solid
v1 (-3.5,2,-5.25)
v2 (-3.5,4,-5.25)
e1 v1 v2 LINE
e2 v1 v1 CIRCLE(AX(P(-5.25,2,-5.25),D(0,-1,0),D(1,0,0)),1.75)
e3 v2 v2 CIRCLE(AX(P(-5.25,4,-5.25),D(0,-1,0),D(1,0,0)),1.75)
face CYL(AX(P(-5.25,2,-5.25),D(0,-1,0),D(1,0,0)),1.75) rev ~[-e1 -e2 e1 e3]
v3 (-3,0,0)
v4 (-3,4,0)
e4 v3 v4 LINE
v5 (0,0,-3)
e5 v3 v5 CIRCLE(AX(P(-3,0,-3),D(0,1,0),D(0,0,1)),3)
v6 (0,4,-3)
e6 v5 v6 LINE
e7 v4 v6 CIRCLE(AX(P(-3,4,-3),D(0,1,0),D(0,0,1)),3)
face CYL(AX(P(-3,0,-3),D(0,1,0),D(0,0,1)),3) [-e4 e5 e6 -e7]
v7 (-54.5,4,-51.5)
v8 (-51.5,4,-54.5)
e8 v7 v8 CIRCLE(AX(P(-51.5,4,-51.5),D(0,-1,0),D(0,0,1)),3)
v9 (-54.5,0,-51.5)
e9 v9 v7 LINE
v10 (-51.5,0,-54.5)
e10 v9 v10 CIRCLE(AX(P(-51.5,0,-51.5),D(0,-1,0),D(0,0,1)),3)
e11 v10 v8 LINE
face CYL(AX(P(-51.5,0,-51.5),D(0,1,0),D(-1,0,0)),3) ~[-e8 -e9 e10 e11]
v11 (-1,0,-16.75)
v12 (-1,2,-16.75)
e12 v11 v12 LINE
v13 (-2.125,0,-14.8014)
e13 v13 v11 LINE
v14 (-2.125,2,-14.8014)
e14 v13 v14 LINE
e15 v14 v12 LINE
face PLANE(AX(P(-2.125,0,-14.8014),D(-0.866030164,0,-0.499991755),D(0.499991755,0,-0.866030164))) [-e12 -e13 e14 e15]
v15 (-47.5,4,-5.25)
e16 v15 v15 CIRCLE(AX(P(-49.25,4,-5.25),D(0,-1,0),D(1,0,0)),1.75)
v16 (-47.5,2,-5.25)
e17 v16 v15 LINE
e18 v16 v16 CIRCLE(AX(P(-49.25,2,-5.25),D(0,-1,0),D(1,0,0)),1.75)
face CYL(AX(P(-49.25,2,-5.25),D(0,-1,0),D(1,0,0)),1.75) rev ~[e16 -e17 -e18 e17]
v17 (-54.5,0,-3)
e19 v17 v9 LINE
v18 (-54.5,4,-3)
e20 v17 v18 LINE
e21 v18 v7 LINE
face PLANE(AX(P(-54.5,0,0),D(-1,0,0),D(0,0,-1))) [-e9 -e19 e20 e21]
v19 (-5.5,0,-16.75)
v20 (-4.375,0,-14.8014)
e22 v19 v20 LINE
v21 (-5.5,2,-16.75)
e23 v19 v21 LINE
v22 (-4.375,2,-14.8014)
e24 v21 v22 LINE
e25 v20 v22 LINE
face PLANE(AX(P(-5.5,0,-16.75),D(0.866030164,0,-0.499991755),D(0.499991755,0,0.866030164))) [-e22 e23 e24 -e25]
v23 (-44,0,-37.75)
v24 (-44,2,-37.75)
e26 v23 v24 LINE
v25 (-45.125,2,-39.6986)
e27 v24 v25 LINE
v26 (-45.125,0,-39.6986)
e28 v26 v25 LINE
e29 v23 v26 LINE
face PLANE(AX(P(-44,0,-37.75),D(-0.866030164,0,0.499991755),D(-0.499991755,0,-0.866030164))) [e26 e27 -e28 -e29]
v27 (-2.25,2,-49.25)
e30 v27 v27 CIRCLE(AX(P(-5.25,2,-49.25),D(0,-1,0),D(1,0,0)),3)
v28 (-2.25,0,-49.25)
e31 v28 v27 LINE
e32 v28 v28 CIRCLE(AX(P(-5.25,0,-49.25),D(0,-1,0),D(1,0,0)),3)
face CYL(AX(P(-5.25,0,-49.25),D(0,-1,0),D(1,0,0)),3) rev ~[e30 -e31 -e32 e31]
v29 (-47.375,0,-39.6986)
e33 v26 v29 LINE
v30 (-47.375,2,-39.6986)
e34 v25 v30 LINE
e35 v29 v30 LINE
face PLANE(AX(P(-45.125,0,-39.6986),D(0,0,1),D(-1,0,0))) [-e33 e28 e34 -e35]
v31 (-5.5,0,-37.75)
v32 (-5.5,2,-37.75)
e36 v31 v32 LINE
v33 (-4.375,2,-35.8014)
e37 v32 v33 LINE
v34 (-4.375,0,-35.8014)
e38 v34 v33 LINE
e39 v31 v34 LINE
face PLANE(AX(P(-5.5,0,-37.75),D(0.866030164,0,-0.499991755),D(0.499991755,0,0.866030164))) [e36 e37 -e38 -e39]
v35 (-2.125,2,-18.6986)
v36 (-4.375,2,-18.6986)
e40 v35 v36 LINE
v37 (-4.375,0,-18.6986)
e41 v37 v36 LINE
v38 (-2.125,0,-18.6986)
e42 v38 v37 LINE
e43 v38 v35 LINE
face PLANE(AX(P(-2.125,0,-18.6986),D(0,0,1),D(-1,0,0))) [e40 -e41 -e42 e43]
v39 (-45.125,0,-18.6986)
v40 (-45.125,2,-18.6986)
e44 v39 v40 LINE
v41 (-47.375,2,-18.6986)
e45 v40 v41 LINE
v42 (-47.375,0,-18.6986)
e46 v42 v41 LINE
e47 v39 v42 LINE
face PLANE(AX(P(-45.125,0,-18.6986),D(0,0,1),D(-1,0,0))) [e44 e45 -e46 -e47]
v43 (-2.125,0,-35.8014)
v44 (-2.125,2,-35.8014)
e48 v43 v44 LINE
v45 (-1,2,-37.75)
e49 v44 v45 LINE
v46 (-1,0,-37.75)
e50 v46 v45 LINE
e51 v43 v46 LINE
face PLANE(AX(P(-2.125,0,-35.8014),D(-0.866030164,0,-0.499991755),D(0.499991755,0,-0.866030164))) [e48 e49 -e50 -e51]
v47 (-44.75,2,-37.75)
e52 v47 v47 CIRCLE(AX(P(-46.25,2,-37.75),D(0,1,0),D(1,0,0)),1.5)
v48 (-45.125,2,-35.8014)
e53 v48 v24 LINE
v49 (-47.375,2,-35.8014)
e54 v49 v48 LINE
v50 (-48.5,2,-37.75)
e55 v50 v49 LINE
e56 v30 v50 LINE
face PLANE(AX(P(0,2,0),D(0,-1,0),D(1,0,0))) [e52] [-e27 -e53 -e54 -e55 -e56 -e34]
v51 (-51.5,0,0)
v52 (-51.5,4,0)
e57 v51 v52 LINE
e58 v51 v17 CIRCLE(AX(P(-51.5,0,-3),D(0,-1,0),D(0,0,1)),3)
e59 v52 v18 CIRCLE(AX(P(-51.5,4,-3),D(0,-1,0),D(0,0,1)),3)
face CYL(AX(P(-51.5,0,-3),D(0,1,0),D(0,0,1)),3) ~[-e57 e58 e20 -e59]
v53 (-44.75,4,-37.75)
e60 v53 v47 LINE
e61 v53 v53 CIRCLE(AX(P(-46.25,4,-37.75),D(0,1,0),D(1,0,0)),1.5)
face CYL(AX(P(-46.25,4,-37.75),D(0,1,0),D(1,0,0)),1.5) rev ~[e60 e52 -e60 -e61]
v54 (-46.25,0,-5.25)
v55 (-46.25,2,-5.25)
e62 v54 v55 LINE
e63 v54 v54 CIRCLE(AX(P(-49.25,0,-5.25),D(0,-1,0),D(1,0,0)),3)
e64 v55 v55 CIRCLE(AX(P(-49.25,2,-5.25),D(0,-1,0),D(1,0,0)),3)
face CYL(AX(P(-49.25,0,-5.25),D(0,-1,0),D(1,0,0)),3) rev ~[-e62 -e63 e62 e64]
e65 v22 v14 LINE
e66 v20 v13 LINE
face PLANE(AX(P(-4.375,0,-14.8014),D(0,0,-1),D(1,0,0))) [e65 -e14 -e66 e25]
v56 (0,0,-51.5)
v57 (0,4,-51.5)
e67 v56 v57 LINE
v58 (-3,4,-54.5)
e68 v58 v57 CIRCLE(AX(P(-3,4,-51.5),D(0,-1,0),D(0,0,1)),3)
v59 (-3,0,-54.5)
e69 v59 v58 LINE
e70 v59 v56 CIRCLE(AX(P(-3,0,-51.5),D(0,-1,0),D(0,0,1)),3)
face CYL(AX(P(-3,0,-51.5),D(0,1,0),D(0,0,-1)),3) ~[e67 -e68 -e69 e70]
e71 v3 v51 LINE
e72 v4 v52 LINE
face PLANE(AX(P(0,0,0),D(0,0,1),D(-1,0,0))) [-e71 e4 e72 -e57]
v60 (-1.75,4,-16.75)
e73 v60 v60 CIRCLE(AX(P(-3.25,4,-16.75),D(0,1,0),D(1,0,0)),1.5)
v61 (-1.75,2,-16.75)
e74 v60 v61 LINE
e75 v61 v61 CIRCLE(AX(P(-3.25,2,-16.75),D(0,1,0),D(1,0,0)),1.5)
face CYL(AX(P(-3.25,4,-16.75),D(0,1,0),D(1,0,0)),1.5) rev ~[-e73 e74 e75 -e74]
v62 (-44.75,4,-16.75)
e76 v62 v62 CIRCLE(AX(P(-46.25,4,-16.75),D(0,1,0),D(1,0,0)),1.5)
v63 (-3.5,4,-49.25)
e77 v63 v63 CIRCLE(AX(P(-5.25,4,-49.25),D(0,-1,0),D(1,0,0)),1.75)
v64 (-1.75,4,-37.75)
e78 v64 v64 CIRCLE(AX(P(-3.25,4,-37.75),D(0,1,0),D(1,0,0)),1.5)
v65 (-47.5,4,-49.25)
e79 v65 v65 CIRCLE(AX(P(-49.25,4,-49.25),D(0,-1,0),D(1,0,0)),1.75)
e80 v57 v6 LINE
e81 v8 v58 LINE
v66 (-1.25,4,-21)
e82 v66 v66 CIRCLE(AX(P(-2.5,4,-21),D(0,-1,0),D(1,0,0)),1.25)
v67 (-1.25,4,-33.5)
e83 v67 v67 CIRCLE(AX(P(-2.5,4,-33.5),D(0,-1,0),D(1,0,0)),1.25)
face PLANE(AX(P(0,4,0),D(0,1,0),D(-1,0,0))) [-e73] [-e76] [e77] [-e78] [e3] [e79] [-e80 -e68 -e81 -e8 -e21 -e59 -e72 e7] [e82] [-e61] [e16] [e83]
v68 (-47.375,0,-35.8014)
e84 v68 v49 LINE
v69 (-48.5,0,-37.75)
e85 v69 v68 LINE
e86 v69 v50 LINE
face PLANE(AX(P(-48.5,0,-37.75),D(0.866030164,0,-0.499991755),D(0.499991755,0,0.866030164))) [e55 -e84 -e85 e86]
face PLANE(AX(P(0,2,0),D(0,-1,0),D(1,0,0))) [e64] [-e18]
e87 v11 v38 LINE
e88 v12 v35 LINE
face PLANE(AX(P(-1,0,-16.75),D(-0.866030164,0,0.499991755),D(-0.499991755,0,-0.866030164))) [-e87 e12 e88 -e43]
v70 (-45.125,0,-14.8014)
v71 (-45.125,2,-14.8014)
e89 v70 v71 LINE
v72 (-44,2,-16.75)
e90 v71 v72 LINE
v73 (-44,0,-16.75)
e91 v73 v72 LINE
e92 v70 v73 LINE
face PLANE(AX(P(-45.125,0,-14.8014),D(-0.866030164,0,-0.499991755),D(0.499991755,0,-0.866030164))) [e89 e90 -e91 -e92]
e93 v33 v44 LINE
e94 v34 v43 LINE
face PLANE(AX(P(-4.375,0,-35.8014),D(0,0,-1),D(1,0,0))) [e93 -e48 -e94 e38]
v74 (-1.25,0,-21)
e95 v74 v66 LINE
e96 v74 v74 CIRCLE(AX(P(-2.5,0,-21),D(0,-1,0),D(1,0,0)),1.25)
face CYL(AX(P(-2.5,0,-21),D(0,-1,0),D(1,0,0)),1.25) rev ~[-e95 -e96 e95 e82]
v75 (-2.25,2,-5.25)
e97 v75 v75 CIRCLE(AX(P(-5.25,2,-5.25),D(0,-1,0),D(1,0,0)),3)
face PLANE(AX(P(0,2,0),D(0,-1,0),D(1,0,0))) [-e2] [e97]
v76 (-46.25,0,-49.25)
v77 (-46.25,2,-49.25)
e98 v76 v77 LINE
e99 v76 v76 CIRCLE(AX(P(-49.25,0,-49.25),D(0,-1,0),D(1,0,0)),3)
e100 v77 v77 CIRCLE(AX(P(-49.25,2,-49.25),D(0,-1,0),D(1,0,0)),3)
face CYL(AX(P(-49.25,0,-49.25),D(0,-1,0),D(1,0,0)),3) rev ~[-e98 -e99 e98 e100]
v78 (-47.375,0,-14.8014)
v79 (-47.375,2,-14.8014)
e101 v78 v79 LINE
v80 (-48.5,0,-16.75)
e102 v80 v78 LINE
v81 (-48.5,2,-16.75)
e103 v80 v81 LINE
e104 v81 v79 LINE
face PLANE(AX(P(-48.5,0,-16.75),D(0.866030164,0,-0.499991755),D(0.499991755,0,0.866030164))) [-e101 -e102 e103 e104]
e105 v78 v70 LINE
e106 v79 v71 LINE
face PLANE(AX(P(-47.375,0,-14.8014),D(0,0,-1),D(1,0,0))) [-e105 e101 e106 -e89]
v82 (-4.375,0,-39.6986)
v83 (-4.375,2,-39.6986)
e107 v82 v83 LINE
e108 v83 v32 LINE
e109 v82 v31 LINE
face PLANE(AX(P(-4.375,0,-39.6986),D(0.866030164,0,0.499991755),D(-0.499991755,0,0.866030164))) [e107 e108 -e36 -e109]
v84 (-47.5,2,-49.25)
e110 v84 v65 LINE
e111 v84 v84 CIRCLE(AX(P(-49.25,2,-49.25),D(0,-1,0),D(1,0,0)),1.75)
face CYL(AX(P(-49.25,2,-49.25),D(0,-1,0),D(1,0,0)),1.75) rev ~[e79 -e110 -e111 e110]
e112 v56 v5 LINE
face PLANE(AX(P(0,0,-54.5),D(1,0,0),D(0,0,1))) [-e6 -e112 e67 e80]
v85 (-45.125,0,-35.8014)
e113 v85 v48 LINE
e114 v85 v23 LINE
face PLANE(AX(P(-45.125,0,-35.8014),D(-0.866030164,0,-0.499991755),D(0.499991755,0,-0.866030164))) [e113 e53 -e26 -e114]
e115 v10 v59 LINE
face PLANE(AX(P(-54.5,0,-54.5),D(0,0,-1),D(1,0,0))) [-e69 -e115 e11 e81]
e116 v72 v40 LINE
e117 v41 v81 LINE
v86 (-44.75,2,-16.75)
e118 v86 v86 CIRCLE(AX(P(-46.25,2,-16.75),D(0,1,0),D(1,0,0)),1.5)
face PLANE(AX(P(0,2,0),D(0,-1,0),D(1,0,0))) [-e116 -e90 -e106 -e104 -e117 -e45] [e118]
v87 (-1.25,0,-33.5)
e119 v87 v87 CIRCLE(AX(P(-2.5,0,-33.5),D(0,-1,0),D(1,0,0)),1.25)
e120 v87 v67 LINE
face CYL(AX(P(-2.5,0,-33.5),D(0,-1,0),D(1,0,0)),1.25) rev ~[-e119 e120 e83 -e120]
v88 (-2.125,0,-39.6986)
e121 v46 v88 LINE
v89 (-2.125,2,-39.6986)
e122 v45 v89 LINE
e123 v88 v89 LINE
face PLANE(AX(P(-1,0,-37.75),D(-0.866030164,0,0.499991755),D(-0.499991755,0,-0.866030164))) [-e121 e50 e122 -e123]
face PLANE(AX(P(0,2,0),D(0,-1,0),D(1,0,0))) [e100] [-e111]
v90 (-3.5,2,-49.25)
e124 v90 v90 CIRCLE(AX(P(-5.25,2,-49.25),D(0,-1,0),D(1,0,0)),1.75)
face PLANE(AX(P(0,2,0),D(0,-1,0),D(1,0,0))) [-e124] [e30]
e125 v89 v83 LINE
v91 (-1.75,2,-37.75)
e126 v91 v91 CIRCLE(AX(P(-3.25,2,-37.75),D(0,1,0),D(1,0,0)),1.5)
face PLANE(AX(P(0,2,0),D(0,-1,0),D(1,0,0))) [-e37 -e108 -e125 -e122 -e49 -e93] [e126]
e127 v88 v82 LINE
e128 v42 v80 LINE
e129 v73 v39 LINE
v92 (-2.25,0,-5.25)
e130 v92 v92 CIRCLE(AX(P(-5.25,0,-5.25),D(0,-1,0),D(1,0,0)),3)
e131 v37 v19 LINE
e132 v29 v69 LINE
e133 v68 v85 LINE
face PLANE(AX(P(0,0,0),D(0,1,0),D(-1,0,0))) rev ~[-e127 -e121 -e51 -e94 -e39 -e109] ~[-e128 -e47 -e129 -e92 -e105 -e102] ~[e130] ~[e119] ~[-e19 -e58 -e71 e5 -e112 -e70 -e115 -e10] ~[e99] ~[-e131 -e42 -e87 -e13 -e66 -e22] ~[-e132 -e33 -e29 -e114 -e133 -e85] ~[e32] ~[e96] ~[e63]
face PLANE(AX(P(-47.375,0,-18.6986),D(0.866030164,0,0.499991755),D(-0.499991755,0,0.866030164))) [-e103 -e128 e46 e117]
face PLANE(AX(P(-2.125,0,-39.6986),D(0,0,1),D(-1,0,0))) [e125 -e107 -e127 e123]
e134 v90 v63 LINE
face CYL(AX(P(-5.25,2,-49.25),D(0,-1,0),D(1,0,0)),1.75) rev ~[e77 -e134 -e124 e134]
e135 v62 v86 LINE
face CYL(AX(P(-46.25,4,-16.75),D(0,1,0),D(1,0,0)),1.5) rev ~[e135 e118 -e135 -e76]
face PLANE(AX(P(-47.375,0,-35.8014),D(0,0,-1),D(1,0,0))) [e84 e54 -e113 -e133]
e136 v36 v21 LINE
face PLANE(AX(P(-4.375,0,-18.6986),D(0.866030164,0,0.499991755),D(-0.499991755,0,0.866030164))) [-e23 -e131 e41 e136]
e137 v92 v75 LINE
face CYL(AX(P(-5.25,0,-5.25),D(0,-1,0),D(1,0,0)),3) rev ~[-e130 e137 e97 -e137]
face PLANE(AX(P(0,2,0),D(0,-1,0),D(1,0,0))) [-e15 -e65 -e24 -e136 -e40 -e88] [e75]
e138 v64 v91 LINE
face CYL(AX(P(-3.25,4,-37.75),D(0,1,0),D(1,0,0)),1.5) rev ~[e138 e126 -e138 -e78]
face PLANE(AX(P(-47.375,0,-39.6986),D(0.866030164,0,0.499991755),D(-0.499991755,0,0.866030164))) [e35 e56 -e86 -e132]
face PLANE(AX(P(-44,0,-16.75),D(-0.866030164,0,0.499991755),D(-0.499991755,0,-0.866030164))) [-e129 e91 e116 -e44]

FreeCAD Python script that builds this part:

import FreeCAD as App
import Part
import Sketcher

V = App.Vector
Q = App.Units.Quantity


def edges_at(feature, points):
    """Names of the edges that pass closest to the given points."""
    edges = feature.Shape.Edges
    near = lambda p: min(range(len(edges)), key=lambda i: edges[i].distToShape(Part.Vertex(*p))[0])
    return sorted({f"Edge{near(p) + 1}" for p in points})


def add_polygon(sketch, points):
    """Adds a closed chain of lines whose ends are joined by coincident constraints."""
    first, n = sketch.GeometryCount, len(points)
    for a, b in zip(points, points[1:] + points[:1]):
        sketch.addGeometry(Part.LineSegment(App.Vector(*a, 0), App.Vector(*b, 0)), False)
    for i in range(n):
        sketch.addConstraint(Sketcher.Constraint("Coincident", first + i, 2, first + (i + 1) % n, 1))

doc = App.newDocument("Part")
params = doc.addObject("Spreadsheet::Sheet", "Params")
for row, (alias, value) in enumerate([
    ("sketch1_width", "54.5 mm"),
    ("pad1_length", "4 mm"),
    ("fillet_radius", "3 mm"),
    ("sketch2_diameter", "6 mm"),
    ("pocket1_length", "2 mm"),
    ("sketch3_diameter", "3.5 mm"),
    ("pocket2_length", "2 mm"),
    ("sketch4_diameter", "3 mm"),
    ("pocket3_length", "4 mm"),
    ("sketch5_width", "2.25 mm"),
    ("pocket4_length", "2 mm"),
    ("sketch6_diameter", "2.5 mm"),
    ("pocket5_length", "4 mm"),
], start=1):
    params.set(f"A{row}", alias)
    params.set(f"B{row}", "=" + value)
    params.setAlias(f"B{row}", alias)

body = doc.addObject("PartDesign::Body", "Body")

# Sketch on XZ plane
sketch1 = doc.addObject("Sketcher::SketchObject", "Sketch")
body.addObject(sketch1)
sketch1.AttachmentSupport = (doc.XZ_Plane, [""])
sketch1.MapMode = "FlatFace"
add_polygon(sketch1, [(-54, 0), (0, 0), (0, -54), (-54, -54)])  # lines 0-3
sketch1.addConstraint([
    Sketcher.Constraint("Horizontal", 0),
    Sketcher.Constraint("Vertical", 1),
    Sketcher.Constraint("Horizontal", 2),
    Sketcher.Constraint("Vertical", 3),
    Sketcher.Constraint("Coincident", 0, 2, -1, 1),
    Sketcher.Constraint("Equal", 2, 1),
    Sketcher.Constraint("DistanceX", 0, 1, 0, 2, Q("54.5 mm")),
])
sketch1.setExpression("Constraints[10]", "Params.sketch1_width")
pad1 = doc.addObject("PartDesign::Pad", "Pad")
body.addObject(pad1)
pad1.Profile = sketch1
pad1.setExpression("Length", "Params.pad1_length")
pad1.Reversed = True
doc.recompute()

fillet = doc.addObject("PartDesign::Fillet", "Fillet")
body.addObject(fillet)
fillet.Base = (pad1, edges_at(pad1, [
    (0, 2, 0),
    (0, 2, -54.5),
    (-54.5, 2, -54.5),
    (-54.5, 2, 0),
]))
fillet.setExpression("Radius", "Params.fillet_radius")

# Sketch on XZ plane
sketch2 = doc.addObject("Sketcher::SketchObject", "Sketch001")
body.addObject(sketch2)
sketch2.AttachmentSupport = (doc.XZ_Plane, [""])
sketch2.MapMode = "FlatFace"
sketch2.addGeometry([
    Part.Circle(V(-49.2, -49.2, 0), V(0, 0, 1), 3),
    Part.Circle(V(-49.2, -5.2, 0), V(0, 0, 1), 3),
    Part.Circle(V(-5.2, -49.2, 0), V(0, 0, 1), 3),
    Part.Circle(V(-5.2, -5.2, 0), V(0, 0, 1), 3),
], False)
sketch2.addConstraint([
    Sketcher.Constraint("Equal", 0, 1),
    Sketcher.Constraint("Equal", 1, 2),
    Sketcher.Constraint("Equal", 2, 3),
    Sketcher.Constraint("Horizontal", 0, 3, 2, 3),
    Sketcher.Constraint("Horizontal", 1, 3, 3, 3),
    Sketcher.Constraint("Vertical", 0, 3, 1, 3),
    Sketcher.Constraint("Vertical", 2, 3, 3, 3),
    Sketcher.Constraint("Diameter", 0, Q("6 mm")),
    Sketcher.Constraint("DistanceY", 0, 3, 1, 3, Q("44 mm")),
    Sketcher.Constraint("DistanceX", 0, 3, 2, 3, Q("44 mm")),
    Sketcher.Constraint("DistanceX", 0, 3, -1, 1, Q("49.25 mm")),
    Sketcher.Constraint("DistanceY", 0, 3, -1, 1, Q("49.25 mm")),
])
sketch2.setExpression("Constraints[7]", "Params.sketch2_diameter")
pocket1 = doc.addObject("PartDesign::Pocket", "Pocket")
body.addObject(pocket1)
pocket1.Profile = sketch2
pocket1.setExpression("Length", "Params.pocket1_length")

# Sketch on XZ plane
sketch3 = doc.addObject("Sketcher::SketchObject", "Sketch002")
body.addObject(sketch3)
sketch3.AttachmentSupport = (doc.XZ_Plane, [""])
sketch3.MapMode = "FlatFace"
sketch3.AttachmentOffset = App.Placement(V(0, 0, -2), App.Rotation())
sketch3.addGeometry([
    Part.Circle(V(-49.2, -49.2, 0), V(0, 0, 1), 1.8),
    Part.Circle(V(-49.2, -5.2, 0), V(0, 0, 1), 1.8),
    Part.Circle(V(-5.2, -49.2, 0), V(0, 0, 1), 1.8),
    Part.Circle(V(-5.2, -5.2, 0), V(0, 0, 1), 1.8),
], False)
sketch3.addConstraint([
    Sketcher.Constraint("Equal", 0, 1),
    Sketcher.Constraint("Equal", 1, 2),
    Sketcher.Constraint("Equal", 2, 3),
    Sketcher.Constraint("Horizontal", 0, 3, 2, 3),
    Sketcher.Constraint("Horizontal", 1, 3, 3, 3),
    Sketcher.Constraint("Vertical", 0, 3, 1, 3),
    Sketcher.Constraint("Vertical", 2, 3, 3, 3),
    Sketcher.Constraint("Diameter", 0, Q("3.5 mm")),
    Sketcher.Constraint("DistanceY", 0, 3, 1, 3, Q("44 mm")),
    Sketcher.Constraint("DistanceX", 0, 3, 2, 3, Q("44 mm")),
    Sketcher.Constraint("DistanceX", 0, 3, -1, 1, Q("49.25 mm")),
    Sketcher.Constraint("DistanceY", 0, 3, -1, 1, Q("49.25 mm")),
])
sketch3.setExpression("Constraints[7]", "Params.sketch3_diameter")
pocket2 = doc.addObject("PartDesign::Pocket", "Pocket001")
body.addObject(pocket2)
pocket2.Profile = sketch3
pocket2.setExpression("Length", "Params.pocket2_length")

# Sketch on XZ plane
sketch4 = doc.addObject("Sketcher::SketchObject", "Sketch003")
body.addObject(sketch4)
sketch4.AttachmentSupport = (doc.XZ_Plane, [""])
sketch4.MapMode = "FlatFace"
sketch4.AttachmentOffset = App.Placement(V(0, 0, -4), App.Rotation())
sketch4.addGeometry([
    Part.Circle(V(-46.2, -16.8, 0), V(0, 0, 1), 1.5),
    Part.Circle(V(-46.2, -37.8, 0), V(0, 0, 1), 1.5),
    Part.Circle(V(-3.2, -37.8, 0), V(0, 0, 1), 1.5),
    Part.Circle(V(-3.2, -16.8, 0), V(0, 0, 1), 1.5),
], False)
sketch4.addConstraint([
    Sketcher.Constraint("Equal", 0, 1),
    Sketcher.Constraint("Equal", 1, 2),
    Sketcher.Constraint("Equal", 2, 3),
    Sketcher.Constraint("Horizontal", 1, 3, 2, 3),
    Sketcher.Constraint("Horizontal", 0, 3, 3, 3),
    Sketcher.Constraint("Vertical", 0, 3, 1, 3),
    Sketcher.Constraint("Vertical", 2, 3, 3, 3),
    Sketcher.Constraint("Diameter", 0, Q("3 mm")),
    Sketcher.Constraint("DistanceY", 1, 3, 0, 3, Q("21 mm")),
    Sketcher.Constraint("DistanceX", 1, 3, 2, 3, Q("43 mm")),
    Sketcher.Constraint("DistanceX", 2, 3, -1, 1, Q("3.25 mm")),
    Sketcher.Constraint("DistanceY", 0, 3, -1, 1, Q("16.75 mm")),
])
sketch4.setExpression("Constraints[7]", "Params.sketch4_diameter")
pocket3 = doc.addObject("PartDesign::Pocket", "Pocket002")
body.addObject(pocket3)
pocket3.Profile = sketch4
pocket3.setExpression("Length", "Params.pocket3_length")
pocket3.Reversed = True

# Sketch on XZ plane
sketch5 = doc.addObject("Sketcher::SketchObject", "Sketch004")
body.addObject(sketch5)
sketch5.AttachmentSupport = (doc.XZ_Plane, [""])
sketch5.MapMode = "FlatFace"
add_polygon(sketch5, [(-2.1, -18.7), (-1, -16.8), (-2.1, -14.8), (-4.4, -14.8), (-5.5, -16.8), (-4.4, -18.7)])  # lines 0-5
add_polygon(sketch5, [(-2.1, -39.7), (-1, -37.8), (-2.1, -35.8), (-4.4, -35.8), (-5.5, -37.8), (-4.4, -39.7)])  # lines 6-11
add_polygon(sketch5, [(-45.1, -39.7), (-44, -37.8), (-45.1, -35.8), (-47.4, -35.8), (-48.5, -37.8), (-47.4, -39.7)])  # lines 12-17
add_polygon(sketch5, [(-45.1, -18.7), (-44, -16.8), (-45.1, -14.8), (-47.4, -14.8), (-48.5, -16.8), (-47.4, -18.7)])  # lines 18-23
sketch5.addConstraint([
    Sketcher.Constraint("Horizontal", 2),
    Sketcher.Constraint("Horizontal", 5),
    Sketcher.Constraint("Horizontal", 8),
    Sketcher.Constraint("Horizontal", 11),
    Sketcher.Constraint("Horizontal", 14),
    Sketcher.Constraint("Horizontal", 17),
    Sketcher.Constraint("Horizontal", 20),
    Sketcher.Constraint("Horizontal", 23),
    Sketcher.Constraint("Parallel", 0, 3),
    Sketcher.Constraint("Parallel", 1, 4),
    Sketcher.Constraint("Parallel", 3, 6),
    Sketcher.Constraint("Parallel", 4, 7),
    Sketcher.Constraint("Parallel", 6, 9),
    Sketcher.Constraint("Parallel", 7, 10),
    Sketcher.Constraint("Parallel", 9, 12),
    Sketcher.Constraint("Parallel", 10, 13),
    Sketcher.Constraint("Parallel", 12, 15),
    Sketcher.Constraint("Parallel", 13, 16),
    Sketcher.Constraint("Parallel", 15, 18),
    Sketcher.Constraint("Parallel", 16, 19),
    Sketcher.Constraint("Parallel", 18, 21),
    Sketcher.Constraint("Parallel", 19, 22),
    Sketcher.Constraint("Horizontal", 0, 2, 3, 2),
    Sketcher.Constraint("Horizontal", 6, 2, 9, 2),
    Sketcher.Constraint("Horizontal", 9, 2, 12, 2),
    Sketcher.Constraint("Horizontal", 8, 2, 13, 2),
    Sketcher.Constraint("Horizontal", 12, 2, 15, 2),
    Sketcher.Constraint("Horizontal", 11, 2, 16, 2),
    Sketcher.Constraint("Horizontal", 3, 2, 18, 2),
    Sketcher.Constraint("Horizontal", 2, 2, 19, 2),
    Sketcher.Constraint("Horizontal", 18, 2, 21, 2),
    Sketcher.Constraint("Horizontal", 5, 2, 22, 2),
    Sketcher.Constraint("Vertical", 2, 2, 4, 2),
    Sketcher.Constraint("Vertical", 1, 2, 5, 2),
    Sketcher.Constraint("Vertical", 0, 2, 6, 2),
    Sketcher.Constraint("Vertical", 5, 2, 7, 2),
    Sketcher.Constraint("Vertical", 4, 2, 8, 2),
    Sketcher.Constraint("Vertical", 8, 2, 10, 2),
    Sketcher.Constraint("Vertical", 12, 2, 18, 2),
    Sketcher.Constraint("Vertical", 16, 2, 20, 2),
    Sketcher.Constraint("Equal", 11, 14),
    Sketcher.Constraint("DistanceX", 3, 2, 0, 2, Q("4.5 mm")),
    Sketcher.Constraint("Angle", 0, Q("60.0005 deg")),
    Sketcher.Constraint("DistanceX", 0, 2, -1, 1, Q("1 mm")),
    Sketcher.Constraint("DistanceX", 12, 2, -1, 1, Q("44 mm")),
    Sketcher.Constraint("DistanceY", 6, 2, 0, 2, Q("21 mm")),
    Sketcher.Constraint("DistanceX", 2, 2, 2, 1, Q("2.25 mm")),
    Sketcher.Constraint("DistanceY", 0, 2, -1, 1, Q("16.75 mm")),
])
sketch5.setExpression("Constraints[70]", "Params.sketch5_width")
pocket4 = doc.addObject("PartDesign::Pocket", "Pocket003")
body.addObject(pocket4)
pocket4.Profile = sketch5
pocket4.setExpression("Length", "Params.pocket4_length")

# Sketch on XZ plane
sketch6 = doc.addObject("Sketcher::SketchObject", "Sketch005")
body.addObject(sketch6)
sketch6.AttachmentSupport = (doc.XZ_Plane, [""])
sketch6.MapMode = "FlatFace"
sketch6.addGeometry([
    Part.Circle(V(-2.5, -33.5, 0), V(0, 0, 1), 1.2),
    Part.Circle(V(-2.5, -21, 0), V(0, 0, 1), 1.2),
], False)
sketch6.addConstraint([
    Sketcher.Constraint("Equal", 0, 1),
    Sketcher.Constraint("Vertical", 0, 3, 1, 3),
    Sketcher.Constraint("Diameter", 0, Q("2.5 mm")),
    Sketcher.Constraint("DistanceX", 0, 3, -1, 1, Q("2.5 mm")),
    Sketcher.Constraint("DistanceY", 0, 3, 1, 3, Q("12.5 mm")),
    Sketcher.Constraint("DistanceY", 1, 3, -1, 1, Q("21 mm")),
])
sketch6.setExpression("Constraints[2]", "Params.sketch6_diameter")
pocket5 = doc.addObject("PartDesign::Pocket", "Pocket004")
body.addObject(pocket5)
pocket5.Profile = sketch6
pocket5.setExpression("Length", "Params.pocket5_length")

doc.recompute()
